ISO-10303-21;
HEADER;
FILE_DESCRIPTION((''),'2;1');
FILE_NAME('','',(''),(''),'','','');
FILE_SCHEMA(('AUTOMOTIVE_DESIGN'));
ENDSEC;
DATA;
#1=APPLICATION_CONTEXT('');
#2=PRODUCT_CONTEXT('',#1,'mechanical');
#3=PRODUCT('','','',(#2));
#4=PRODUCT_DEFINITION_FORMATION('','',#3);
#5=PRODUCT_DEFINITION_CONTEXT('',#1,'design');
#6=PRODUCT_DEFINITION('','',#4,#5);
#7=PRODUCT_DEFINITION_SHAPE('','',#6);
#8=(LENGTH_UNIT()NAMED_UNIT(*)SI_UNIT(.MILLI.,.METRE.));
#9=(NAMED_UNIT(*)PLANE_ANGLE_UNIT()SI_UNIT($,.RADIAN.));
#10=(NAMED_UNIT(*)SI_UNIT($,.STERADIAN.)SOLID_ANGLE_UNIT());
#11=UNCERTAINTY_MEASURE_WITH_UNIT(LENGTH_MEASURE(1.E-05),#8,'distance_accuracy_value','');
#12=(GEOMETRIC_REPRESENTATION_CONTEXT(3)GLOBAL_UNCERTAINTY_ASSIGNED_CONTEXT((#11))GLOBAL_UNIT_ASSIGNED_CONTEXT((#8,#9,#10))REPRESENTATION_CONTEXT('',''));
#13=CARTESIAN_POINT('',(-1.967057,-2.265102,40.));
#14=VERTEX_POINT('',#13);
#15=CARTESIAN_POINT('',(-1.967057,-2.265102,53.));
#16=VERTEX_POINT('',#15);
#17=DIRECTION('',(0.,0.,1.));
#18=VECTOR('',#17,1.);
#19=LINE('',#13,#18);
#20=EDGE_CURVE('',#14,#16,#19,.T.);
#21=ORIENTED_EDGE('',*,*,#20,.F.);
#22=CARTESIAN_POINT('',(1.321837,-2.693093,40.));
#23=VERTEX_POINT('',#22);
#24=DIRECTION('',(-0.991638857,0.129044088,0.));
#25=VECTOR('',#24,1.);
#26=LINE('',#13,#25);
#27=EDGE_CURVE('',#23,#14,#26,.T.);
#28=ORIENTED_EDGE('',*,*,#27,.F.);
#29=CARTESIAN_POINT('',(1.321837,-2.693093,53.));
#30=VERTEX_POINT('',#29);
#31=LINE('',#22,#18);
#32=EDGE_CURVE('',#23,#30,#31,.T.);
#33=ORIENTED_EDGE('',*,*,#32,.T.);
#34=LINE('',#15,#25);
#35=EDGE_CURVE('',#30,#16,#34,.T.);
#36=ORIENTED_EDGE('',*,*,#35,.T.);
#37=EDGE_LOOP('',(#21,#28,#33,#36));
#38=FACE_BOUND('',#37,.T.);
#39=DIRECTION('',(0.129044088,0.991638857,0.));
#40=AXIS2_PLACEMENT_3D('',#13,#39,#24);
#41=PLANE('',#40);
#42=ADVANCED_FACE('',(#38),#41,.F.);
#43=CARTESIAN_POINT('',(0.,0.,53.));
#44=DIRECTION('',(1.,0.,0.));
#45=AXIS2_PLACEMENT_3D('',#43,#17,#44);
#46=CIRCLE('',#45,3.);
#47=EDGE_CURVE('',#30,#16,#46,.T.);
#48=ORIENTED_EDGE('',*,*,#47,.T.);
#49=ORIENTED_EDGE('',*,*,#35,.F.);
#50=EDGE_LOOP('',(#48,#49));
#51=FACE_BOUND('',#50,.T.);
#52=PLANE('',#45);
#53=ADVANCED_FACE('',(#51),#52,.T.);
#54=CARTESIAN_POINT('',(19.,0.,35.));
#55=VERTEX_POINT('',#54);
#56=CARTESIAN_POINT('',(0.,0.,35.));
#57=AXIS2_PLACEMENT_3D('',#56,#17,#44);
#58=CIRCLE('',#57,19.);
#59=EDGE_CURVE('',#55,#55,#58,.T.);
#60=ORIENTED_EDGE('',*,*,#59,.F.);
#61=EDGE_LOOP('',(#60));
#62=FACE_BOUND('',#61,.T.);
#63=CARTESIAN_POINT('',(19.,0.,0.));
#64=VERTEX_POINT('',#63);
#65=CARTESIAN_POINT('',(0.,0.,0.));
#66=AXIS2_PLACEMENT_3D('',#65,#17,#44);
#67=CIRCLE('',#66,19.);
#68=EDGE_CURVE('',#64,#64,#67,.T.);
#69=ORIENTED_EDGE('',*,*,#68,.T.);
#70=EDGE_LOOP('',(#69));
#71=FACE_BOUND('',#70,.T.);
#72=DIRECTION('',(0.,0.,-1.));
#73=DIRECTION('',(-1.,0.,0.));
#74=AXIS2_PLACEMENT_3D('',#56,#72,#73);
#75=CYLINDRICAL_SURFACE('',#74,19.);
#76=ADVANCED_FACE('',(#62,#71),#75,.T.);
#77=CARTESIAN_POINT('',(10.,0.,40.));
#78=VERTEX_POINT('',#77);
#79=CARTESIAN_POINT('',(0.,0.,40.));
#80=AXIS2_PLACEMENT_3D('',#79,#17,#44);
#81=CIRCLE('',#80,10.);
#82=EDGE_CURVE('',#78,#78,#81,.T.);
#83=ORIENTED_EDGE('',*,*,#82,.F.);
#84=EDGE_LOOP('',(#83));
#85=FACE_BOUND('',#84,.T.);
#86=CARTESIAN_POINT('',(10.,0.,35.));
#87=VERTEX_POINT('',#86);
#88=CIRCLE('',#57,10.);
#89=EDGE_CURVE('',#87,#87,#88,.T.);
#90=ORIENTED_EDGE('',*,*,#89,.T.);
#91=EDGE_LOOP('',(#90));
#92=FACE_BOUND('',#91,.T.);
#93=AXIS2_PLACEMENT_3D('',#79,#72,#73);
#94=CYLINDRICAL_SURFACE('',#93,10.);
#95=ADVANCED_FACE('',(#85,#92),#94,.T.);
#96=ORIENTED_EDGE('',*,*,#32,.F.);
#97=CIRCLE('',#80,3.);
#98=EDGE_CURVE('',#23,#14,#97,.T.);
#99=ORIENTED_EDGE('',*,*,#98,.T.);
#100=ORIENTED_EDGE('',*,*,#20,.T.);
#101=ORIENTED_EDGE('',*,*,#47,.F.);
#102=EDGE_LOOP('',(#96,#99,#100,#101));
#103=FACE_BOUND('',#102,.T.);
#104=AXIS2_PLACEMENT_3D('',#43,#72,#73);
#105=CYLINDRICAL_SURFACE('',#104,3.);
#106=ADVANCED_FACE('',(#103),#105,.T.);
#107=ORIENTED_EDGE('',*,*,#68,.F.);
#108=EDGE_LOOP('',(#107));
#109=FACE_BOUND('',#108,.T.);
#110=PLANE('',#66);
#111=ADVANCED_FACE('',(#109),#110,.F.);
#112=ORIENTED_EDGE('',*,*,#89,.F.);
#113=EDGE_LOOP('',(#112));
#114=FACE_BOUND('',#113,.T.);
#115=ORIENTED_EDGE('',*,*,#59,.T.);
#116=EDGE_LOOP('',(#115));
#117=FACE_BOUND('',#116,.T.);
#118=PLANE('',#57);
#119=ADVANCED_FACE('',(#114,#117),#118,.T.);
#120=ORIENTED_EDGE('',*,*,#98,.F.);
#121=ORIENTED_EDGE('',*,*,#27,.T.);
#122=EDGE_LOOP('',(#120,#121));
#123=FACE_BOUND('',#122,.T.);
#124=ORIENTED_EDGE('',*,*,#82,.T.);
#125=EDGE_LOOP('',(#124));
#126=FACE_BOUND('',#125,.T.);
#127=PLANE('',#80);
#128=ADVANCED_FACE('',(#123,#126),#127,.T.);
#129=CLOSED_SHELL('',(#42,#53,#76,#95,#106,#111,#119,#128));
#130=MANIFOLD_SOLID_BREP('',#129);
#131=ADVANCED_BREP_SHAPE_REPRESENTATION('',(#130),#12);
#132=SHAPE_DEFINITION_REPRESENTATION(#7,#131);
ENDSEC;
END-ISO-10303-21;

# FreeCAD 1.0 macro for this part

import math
import FreeCAD as App
import Part
import Sketcher

V = App.Vector

doc = App.newDocument("Part")
body = doc.addObject("PartDesign::Body", "Body")

sketch1 = body.newObject("Sketcher::SketchObject", "Sketch")
sketch1.AttachmentSupport = (doc.getObject("XY_Plane"), [""])
sketch1.MapMode = "FlatFace"
sketch1.addGeometry(Part.Circle(V(0, 0, 0), V(0, 0, 1), 19), False)
sketch1.addConstraint([
    Sketcher.Constraint("Coincident", 0, 3, -1, 1),
    Sketcher.Constraint("Diameter", 0, 38.0),
])
pad1 = body.newObject("PartDesign::Pad", "Pad")
pad1.Profile = sketch1
pad1.Length = 35

sketch2 = body.newObject("Sketcher::SketchObject", "Sketch001")
sketch2.AttachmentSupport = (doc.getObject("XY_Plane"), [""])
sketch2.MapMode = "FlatFace"
sketch2.AttachmentOffset = App.Placement(V(0, 0, 35), App.Rotation())
sketch2.addGeometry(Part.Circle(V(0, 0, 0), V(0, 0, 1), 10), False)
sketch2.addConstraint([
    Sketcher.Constraint("Coincident", 0, 3, -1, 1),
    Sketcher.Constraint("Diameter", 0, 20.0),
])
pad2 = body.newObject("PartDesign::Pad", "Pad001")
pad2.Profile = sketch2
pad2.Length = 5

sketch3 = body.newObject("Sketcher::SketchObject", "Sketch002")
sketch3.AttachmentSupport = (doc.getObject("XY_Plane"), [""])
sketch3.MapMode = "FlatFace"
sketch3.AttachmentOffset = App.Placement(V(0, 0, 40), App.Rotation())
sketch3.addGeometry(Part.Circle(V(0, 0, 0), V(0, 0, 1), 3), False)
sketch3.addConstraint([
    Sketcher.Constraint("Coincident", 0, 3, -1, 1),
    Sketcher.Constraint("Diameter", 0, 6.0),
])
pad3 = body.newObject("PartDesign::Pad", "Pad002")
pad3.Profile = sketch3
pad3.Length = 13

sketch4 = body.newObject("Sketcher::SketchObject", "Sketch003")
sketch4.AttachmentSupport = (doc.getObject("XY_Plane"), [""])
sketch4.MapMode = "FlatFace"
sketch4.AttachmentOffset = App.Placement(V(0, 0, 40), App.Rotation())
sketch4.addGeometry([
    Part.LineSegment(V(1.3, -2.7, 0), V(-2, -2.3, 0)),
    Part.ArcOfCircle(Part.Circle(V(0, 0, 0), V(0, 0, 1), 3), math.radians(-131), math.radians(-64)),
], False)
sketch4.addConstraint([
    Sketcher.Constraint("Coincident", 0, 1, 1, 2),
    Sketcher.Constraint("Coincident", 1, 1, 0, 2),
    Sketcher.Constraint("Coincident", 1, 3, -1, 1),
    Sketcher.Constraint("Radius", 1, 3.0),
    Sketcher.Constraint("DistanceY", 1, 1, -1, 1, 2.265102),
    Sketcher.Constraint("DistanceY", 0, 1, 1, 1, 0.427991),
])
pocket1 = body.newObject("PartDesign::Pocket", "Pocket")
pocket1.Profile = sketch4
pocket1.Length = 13
pocket1.Reversed = True

doc.recompute()
